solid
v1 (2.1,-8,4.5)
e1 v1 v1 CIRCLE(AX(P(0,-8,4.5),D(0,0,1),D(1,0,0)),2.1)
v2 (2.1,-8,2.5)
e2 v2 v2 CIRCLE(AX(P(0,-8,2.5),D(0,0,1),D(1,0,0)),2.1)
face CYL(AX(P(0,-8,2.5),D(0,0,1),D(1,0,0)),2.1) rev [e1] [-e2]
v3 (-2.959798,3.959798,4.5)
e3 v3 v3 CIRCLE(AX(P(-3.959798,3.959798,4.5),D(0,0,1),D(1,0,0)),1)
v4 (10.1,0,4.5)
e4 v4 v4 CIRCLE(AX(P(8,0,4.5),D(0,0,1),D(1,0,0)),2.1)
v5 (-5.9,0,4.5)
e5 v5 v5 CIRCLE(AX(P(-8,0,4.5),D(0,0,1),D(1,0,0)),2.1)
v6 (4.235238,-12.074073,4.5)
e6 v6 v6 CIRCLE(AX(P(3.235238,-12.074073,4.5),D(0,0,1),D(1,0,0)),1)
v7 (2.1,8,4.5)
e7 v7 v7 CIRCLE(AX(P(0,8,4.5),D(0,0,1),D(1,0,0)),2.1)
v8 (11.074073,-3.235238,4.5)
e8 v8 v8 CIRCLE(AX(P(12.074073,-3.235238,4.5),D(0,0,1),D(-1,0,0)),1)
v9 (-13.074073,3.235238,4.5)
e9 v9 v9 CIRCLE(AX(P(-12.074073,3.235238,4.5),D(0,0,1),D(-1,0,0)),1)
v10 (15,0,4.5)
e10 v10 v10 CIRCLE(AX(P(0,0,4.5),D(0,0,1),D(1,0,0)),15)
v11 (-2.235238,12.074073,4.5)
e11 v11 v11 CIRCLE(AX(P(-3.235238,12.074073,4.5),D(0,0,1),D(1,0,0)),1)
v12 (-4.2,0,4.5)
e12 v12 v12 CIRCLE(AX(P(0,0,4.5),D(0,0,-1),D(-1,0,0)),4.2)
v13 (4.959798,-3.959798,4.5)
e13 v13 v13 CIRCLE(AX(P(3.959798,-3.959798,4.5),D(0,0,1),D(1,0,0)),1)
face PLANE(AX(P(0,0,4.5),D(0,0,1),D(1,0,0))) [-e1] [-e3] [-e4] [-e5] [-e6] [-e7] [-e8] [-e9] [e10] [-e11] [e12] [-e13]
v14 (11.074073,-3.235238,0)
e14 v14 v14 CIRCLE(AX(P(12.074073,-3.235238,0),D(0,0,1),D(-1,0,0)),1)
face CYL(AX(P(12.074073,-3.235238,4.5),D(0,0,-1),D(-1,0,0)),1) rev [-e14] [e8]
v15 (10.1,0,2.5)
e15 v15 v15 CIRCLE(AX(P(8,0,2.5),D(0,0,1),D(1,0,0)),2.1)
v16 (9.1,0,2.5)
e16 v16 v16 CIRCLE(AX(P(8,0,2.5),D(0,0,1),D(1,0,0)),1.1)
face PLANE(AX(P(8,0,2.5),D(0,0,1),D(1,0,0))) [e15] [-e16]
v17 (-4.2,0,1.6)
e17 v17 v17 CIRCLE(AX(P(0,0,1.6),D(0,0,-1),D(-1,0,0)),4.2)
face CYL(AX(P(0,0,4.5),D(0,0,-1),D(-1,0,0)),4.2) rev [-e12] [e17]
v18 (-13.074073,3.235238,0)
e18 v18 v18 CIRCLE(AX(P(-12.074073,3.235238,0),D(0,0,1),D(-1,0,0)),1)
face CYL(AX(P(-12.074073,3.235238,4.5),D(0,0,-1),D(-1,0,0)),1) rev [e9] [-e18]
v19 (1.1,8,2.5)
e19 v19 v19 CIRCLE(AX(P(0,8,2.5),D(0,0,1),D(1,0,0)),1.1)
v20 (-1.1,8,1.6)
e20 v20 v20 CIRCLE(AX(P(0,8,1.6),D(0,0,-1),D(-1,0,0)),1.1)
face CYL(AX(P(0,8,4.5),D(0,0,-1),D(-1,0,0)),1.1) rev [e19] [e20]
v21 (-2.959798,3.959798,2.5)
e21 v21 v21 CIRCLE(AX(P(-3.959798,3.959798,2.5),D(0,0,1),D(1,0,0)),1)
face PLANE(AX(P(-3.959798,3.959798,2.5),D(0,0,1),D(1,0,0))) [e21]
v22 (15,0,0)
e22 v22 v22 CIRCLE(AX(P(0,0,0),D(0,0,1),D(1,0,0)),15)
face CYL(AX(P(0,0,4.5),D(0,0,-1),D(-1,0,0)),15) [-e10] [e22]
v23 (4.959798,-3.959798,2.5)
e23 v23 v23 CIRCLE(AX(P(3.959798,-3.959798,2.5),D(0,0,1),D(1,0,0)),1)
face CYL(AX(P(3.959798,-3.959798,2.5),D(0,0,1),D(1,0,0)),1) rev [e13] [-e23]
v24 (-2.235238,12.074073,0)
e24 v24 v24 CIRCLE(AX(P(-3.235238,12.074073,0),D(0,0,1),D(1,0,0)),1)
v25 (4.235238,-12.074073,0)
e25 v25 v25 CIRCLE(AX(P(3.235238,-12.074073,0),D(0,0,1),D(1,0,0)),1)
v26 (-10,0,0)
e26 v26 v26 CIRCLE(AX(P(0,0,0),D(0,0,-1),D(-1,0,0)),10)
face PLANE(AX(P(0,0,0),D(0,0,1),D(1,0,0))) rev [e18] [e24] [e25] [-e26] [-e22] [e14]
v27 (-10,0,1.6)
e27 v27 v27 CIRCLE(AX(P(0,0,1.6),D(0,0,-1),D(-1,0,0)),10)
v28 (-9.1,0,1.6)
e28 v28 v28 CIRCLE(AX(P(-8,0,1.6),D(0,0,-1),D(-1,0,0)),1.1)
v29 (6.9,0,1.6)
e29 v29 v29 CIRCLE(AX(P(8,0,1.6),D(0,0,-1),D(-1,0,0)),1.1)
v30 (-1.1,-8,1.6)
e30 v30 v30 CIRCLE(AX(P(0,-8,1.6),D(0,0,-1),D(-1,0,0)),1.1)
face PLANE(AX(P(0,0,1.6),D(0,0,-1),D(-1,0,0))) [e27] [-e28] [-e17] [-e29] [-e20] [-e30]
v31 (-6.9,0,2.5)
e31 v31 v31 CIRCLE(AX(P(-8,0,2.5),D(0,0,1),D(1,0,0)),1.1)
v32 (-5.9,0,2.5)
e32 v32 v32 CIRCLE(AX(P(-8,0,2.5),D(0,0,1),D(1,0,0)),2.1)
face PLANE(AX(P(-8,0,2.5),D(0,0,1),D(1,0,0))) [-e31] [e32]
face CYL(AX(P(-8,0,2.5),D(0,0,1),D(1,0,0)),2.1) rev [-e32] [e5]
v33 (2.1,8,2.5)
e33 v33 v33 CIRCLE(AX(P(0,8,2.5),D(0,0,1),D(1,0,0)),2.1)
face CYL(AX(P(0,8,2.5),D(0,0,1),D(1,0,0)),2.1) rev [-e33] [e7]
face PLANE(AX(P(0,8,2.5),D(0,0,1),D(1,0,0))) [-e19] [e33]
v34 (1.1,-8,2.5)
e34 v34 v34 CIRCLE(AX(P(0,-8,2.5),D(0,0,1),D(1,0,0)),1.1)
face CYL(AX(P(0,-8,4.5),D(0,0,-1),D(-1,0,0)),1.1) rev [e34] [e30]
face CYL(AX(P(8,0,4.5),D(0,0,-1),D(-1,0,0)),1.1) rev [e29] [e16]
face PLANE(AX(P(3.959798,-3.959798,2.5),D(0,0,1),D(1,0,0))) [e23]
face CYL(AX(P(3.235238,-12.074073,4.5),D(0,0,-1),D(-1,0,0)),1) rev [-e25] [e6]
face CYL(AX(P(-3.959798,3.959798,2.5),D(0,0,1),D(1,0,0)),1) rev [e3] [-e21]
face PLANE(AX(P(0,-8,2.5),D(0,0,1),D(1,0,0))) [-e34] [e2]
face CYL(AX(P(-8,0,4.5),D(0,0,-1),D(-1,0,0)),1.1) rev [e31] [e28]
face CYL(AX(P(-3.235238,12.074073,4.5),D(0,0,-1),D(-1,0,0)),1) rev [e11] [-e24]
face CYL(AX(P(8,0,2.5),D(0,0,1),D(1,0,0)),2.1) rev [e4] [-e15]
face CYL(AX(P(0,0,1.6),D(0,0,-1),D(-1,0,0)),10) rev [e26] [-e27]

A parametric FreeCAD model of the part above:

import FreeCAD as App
import Part
import Sketcher

V = App.Vector
Q = App.Units.Quantity

doc = App.newDocument("Part")
body = doc.addObject("PartDesign::Body", "Body")

# Sketch on XY plane
sketch1 = body.newObject("Sketcher::SketchObject", "Sketch")
sketch1.AttachmentSupport = (doc.getObject("XY_Plane"), [""])
sketch1.MapMode = "FlatFace"
sketch1.addGeometry([
    Part.Circle(V(0, 0, 0), V(0, 0, 1), 15),  # 0
    Part.Circle(V(3.235238, -12.074073, 0), V(0, 0, 1), 1),  # 1
    Part.Circle(V(0, -8, 0), V(0, 0, 1), 1.1),  # 2
    Part.Circle(V(12.074073, -3.235238, 0), V(0, 0, 1), 1),  # 3
    Part.Circle(V(-12.074073, 3.235238, 0), V(0, 0, 1), 1),  # 4
    Part.Circle(V(-8, 0, 0), V(0, 0, 1), 1.1),  # 5
    Part.Circle(V(-3.235238, 12.074073, 0), V(0, 0, 1), 1),  # 6
    Part.Circle(V(0, 0, 0), V(0, 0, 1), 2.3),  # 7
    Part.Circle(V(8, 0, 0), V(0, 0, 1), 1.1),  # 8
    Part.Circle(V(0, 8, 0), V(0, 0, 1), 1.1),  # 9
], False)
sketch1.addConstraint([
    Sketcher.Constraint("Coincident", 0, 3, -1, 1),
    Sketcher.Constraint("Coincident", 7, 3, -1, 1),
    Sketcher.Constraint("Equal", 1, 3),
    Sketcher.Constraint("Equal", 3, 4),
    Sketcher.Constraint("Equal", 2, 5),
    Sketcher.Constraint("Equal", 4, 6),
    Sketcher.Constraint("Equal", 5, 8),
    Sketcher.Constraint("Equal", 8, 9),
    Sketcher.Constraint("Symmetric", 3, 3, 4, 3, -1, 1),
    Sketcher.Constraint("Symmetric", 1, 3, 6, 3, -1, 1),
    Sketcher.Constraint("Symmetric", 5, 3, 8, 3, -1, 1),
    Sketcher.Constraint("Symmetric", 2, 3, 9, 3, -1, 1),
    Sketcher.Constraint("PointOnObject", 2, 3, -2),
    Sketcher.Constraint("PointOnObject", 5, 3, -1),
    Sketcher.Constraint("Diameter", 0, Q("30 mm")),
    Sketcher.Constraint("Diameter", 1, Q("2 mm")),
    Sketcher.Constraint("Diameter", 2, Q("2.2 mm")),
    Sketcher.Constraint("Diameter", 7, Q("4.6 mm")),
    Sketcher.Constraint("DistanceY", 2, 3, -1, 1, Q("8 mm")),
    Sketcher.Constraint("DistanceX", 5, 3, -1, 1, Q("8 mm")),
    Sketcher.Constraint("DistanceX", -1, 1, 1, 3, Q("3.235238 mm")),
    Sketcher.Constraint("DistanceY", 3, 3, -1, 1, Q("3.235238 mm")),
    Sketcher.Constraint("DistanceX", 4, 3, 1, 3, Q("15.309311 mm")),
    Sketcher.Constraint("DistanceY", 1, 3, 4, 3, Q("15.309311 mm")),
])
pad1 = body.newObject("PartDesign::Pad", "Pad")
pad1.Profile = sketch1
pad1.Length = 4.5

# Sketch on XY plane
sketch2 = body.newObject("Sketcher::SketchObject", "Sketch001")
sketch2.AttachmentSupport = (doc.getObject("XY_Plane"), [""])
sketch2.MapMode = "FlatFace"
sketch2.AttachmentOffset = App.Placement(V(0, 0, 4.5), App.Rotation())
sketch2.addGeometry([
    Part.Circle(V(0, 8, 0), V(0, 0, 1), 2.1),
    Part.Circle(V(8, 0, 0), V(0, 0, 1), 2.1),
    Part.Circle(V(0, -8, 0), V(0, 0, 1), 2.1),
    Part.Circle(V(-8, 0, 0), V(0, 0, 1), 2.1),
], False)
sketch2.addConstraint([
    Sketcher.Constraint("Equal", 0, 1),
    Sketcher.Constraint("Equal", 1, 2),
    Sketcher.Constraint("Equal", 2, 3),
    Sketcher.Constraint("Symmetric", 0, 3, 2, 3, -1, 1),
    Sketcher.Constraint("Symmetric", 1, 3, 3, 3, -1, 1),
    Sketcher.Constraint("PointOnObject", 0, 3, -2),
    Sketcher.Constraint("PointOnObject", 1, 3, -1),
    Sketcher.Constraint("Diameter", 0, Q("4.2 mm")),
    Sketcher.Constraint("DistanceY", -1, 1, 0, 3, Q("8 mm")),
    Sketcher.Constraint("DistanceX", -1, 1, 1, 3, Q("8 mm")),
])
pocket1 = body.newObject("PartDesign::Pocket", "Pocket")
pocket1.Profile = sketch2
pocket1.Length = 2

# Sketch on XY plane
sketch3 = body.newObject("Sketcher::SketchObject", "Sketch002")
sketch3.AttachmentSupport = (doc.getObject("XY_Plane"), [""])
sketch3.MapMode = "FlatFace"
sketch3.addGeometry(Part.Circle(V(0, 0, 0), V(0, 0, 1), 10), False)
sketch3.addConstraint([
    Sketcher.Constraint("Coincident", 0, 3, -1, 1),
    Sketcher.Constraint("Diameter", 0, Q("20 mm")),
])
pocket2 = body.newObject("PartDesign::Pocket", "Pocket001")
pocket2.Profile = sketch3
pocket2.Length = 1.6
pocket2.Reversed = True

# Sketch on XY plane
sketch4 = body.newObject("Sketcher::SketchObject", "Sketch003")
sketch4.AttachmentSupport = (doc.getObject("XY_Plane"), [""])
sketch4.MapMode = "FlatFace"
sketch4.AttachmentOffset = App.Placement(V(0, 0, 1.6), App.Rotation())
sketch4.addGeometry(Part.Circle(V(0, 0, 0), V(0, 0, 1), 4.2), False)
sketch4.addConstraint([
    Sketcher.Constraint("Coincident", 0, 3, -1, 1),
    Sketcher.Constraint("Diameter", 0, Q("8.4 mm")),
])
pocket3 = body.newObject("PartDesign::Pocket", "Pocket002")
pocket3.Profile = sketch4
pocket3.Type = "ThroughAll"
pocket3.Reversed = True

# Sketch on XY plane
sketch5 = body.newObject("Sketcher::SketchObject", "Sketch004")
sketch5.AttachmentSupport = (doc.getObject("XY_Plane"), [""])
sketch5.MapMode = "FlatFace"
sketch5.AttachmentOffset = App.Placement(V(0, 0, 4.5), App.Rotation())
sketch5.addGeometry([
    Part.Circle(V(-3.959798, 3.959798, 0), V(0, 0, 1), 1),
    Part.Circle(V(3.959798, -3.959798, 0), V(0, 0, 1), 1),
], False)
sketch5.addConstraint([
    Sketcher.Constraint("Equal", 0, 1),
    Sketcher.Constraint("Symmetric", 0, 3, 1, 3, -1, 1),
    Sketcher.Constraint("Diameter", 0, Q("2 mm")),
    Sketcher.Constraint("DistanceX", 0, 3, -1, 1, Q("3.959798 mm")),
    Sketcher.Constraint("DistanceY", -1, 1, 0, 3, Q("3.959798 mm")),
])
pocket4 = body.newObject("PartDesign::Pocket", "Pocket003")
pocket4.Profile = sketch5
pocket4.Length = 2

doc.recompute()
